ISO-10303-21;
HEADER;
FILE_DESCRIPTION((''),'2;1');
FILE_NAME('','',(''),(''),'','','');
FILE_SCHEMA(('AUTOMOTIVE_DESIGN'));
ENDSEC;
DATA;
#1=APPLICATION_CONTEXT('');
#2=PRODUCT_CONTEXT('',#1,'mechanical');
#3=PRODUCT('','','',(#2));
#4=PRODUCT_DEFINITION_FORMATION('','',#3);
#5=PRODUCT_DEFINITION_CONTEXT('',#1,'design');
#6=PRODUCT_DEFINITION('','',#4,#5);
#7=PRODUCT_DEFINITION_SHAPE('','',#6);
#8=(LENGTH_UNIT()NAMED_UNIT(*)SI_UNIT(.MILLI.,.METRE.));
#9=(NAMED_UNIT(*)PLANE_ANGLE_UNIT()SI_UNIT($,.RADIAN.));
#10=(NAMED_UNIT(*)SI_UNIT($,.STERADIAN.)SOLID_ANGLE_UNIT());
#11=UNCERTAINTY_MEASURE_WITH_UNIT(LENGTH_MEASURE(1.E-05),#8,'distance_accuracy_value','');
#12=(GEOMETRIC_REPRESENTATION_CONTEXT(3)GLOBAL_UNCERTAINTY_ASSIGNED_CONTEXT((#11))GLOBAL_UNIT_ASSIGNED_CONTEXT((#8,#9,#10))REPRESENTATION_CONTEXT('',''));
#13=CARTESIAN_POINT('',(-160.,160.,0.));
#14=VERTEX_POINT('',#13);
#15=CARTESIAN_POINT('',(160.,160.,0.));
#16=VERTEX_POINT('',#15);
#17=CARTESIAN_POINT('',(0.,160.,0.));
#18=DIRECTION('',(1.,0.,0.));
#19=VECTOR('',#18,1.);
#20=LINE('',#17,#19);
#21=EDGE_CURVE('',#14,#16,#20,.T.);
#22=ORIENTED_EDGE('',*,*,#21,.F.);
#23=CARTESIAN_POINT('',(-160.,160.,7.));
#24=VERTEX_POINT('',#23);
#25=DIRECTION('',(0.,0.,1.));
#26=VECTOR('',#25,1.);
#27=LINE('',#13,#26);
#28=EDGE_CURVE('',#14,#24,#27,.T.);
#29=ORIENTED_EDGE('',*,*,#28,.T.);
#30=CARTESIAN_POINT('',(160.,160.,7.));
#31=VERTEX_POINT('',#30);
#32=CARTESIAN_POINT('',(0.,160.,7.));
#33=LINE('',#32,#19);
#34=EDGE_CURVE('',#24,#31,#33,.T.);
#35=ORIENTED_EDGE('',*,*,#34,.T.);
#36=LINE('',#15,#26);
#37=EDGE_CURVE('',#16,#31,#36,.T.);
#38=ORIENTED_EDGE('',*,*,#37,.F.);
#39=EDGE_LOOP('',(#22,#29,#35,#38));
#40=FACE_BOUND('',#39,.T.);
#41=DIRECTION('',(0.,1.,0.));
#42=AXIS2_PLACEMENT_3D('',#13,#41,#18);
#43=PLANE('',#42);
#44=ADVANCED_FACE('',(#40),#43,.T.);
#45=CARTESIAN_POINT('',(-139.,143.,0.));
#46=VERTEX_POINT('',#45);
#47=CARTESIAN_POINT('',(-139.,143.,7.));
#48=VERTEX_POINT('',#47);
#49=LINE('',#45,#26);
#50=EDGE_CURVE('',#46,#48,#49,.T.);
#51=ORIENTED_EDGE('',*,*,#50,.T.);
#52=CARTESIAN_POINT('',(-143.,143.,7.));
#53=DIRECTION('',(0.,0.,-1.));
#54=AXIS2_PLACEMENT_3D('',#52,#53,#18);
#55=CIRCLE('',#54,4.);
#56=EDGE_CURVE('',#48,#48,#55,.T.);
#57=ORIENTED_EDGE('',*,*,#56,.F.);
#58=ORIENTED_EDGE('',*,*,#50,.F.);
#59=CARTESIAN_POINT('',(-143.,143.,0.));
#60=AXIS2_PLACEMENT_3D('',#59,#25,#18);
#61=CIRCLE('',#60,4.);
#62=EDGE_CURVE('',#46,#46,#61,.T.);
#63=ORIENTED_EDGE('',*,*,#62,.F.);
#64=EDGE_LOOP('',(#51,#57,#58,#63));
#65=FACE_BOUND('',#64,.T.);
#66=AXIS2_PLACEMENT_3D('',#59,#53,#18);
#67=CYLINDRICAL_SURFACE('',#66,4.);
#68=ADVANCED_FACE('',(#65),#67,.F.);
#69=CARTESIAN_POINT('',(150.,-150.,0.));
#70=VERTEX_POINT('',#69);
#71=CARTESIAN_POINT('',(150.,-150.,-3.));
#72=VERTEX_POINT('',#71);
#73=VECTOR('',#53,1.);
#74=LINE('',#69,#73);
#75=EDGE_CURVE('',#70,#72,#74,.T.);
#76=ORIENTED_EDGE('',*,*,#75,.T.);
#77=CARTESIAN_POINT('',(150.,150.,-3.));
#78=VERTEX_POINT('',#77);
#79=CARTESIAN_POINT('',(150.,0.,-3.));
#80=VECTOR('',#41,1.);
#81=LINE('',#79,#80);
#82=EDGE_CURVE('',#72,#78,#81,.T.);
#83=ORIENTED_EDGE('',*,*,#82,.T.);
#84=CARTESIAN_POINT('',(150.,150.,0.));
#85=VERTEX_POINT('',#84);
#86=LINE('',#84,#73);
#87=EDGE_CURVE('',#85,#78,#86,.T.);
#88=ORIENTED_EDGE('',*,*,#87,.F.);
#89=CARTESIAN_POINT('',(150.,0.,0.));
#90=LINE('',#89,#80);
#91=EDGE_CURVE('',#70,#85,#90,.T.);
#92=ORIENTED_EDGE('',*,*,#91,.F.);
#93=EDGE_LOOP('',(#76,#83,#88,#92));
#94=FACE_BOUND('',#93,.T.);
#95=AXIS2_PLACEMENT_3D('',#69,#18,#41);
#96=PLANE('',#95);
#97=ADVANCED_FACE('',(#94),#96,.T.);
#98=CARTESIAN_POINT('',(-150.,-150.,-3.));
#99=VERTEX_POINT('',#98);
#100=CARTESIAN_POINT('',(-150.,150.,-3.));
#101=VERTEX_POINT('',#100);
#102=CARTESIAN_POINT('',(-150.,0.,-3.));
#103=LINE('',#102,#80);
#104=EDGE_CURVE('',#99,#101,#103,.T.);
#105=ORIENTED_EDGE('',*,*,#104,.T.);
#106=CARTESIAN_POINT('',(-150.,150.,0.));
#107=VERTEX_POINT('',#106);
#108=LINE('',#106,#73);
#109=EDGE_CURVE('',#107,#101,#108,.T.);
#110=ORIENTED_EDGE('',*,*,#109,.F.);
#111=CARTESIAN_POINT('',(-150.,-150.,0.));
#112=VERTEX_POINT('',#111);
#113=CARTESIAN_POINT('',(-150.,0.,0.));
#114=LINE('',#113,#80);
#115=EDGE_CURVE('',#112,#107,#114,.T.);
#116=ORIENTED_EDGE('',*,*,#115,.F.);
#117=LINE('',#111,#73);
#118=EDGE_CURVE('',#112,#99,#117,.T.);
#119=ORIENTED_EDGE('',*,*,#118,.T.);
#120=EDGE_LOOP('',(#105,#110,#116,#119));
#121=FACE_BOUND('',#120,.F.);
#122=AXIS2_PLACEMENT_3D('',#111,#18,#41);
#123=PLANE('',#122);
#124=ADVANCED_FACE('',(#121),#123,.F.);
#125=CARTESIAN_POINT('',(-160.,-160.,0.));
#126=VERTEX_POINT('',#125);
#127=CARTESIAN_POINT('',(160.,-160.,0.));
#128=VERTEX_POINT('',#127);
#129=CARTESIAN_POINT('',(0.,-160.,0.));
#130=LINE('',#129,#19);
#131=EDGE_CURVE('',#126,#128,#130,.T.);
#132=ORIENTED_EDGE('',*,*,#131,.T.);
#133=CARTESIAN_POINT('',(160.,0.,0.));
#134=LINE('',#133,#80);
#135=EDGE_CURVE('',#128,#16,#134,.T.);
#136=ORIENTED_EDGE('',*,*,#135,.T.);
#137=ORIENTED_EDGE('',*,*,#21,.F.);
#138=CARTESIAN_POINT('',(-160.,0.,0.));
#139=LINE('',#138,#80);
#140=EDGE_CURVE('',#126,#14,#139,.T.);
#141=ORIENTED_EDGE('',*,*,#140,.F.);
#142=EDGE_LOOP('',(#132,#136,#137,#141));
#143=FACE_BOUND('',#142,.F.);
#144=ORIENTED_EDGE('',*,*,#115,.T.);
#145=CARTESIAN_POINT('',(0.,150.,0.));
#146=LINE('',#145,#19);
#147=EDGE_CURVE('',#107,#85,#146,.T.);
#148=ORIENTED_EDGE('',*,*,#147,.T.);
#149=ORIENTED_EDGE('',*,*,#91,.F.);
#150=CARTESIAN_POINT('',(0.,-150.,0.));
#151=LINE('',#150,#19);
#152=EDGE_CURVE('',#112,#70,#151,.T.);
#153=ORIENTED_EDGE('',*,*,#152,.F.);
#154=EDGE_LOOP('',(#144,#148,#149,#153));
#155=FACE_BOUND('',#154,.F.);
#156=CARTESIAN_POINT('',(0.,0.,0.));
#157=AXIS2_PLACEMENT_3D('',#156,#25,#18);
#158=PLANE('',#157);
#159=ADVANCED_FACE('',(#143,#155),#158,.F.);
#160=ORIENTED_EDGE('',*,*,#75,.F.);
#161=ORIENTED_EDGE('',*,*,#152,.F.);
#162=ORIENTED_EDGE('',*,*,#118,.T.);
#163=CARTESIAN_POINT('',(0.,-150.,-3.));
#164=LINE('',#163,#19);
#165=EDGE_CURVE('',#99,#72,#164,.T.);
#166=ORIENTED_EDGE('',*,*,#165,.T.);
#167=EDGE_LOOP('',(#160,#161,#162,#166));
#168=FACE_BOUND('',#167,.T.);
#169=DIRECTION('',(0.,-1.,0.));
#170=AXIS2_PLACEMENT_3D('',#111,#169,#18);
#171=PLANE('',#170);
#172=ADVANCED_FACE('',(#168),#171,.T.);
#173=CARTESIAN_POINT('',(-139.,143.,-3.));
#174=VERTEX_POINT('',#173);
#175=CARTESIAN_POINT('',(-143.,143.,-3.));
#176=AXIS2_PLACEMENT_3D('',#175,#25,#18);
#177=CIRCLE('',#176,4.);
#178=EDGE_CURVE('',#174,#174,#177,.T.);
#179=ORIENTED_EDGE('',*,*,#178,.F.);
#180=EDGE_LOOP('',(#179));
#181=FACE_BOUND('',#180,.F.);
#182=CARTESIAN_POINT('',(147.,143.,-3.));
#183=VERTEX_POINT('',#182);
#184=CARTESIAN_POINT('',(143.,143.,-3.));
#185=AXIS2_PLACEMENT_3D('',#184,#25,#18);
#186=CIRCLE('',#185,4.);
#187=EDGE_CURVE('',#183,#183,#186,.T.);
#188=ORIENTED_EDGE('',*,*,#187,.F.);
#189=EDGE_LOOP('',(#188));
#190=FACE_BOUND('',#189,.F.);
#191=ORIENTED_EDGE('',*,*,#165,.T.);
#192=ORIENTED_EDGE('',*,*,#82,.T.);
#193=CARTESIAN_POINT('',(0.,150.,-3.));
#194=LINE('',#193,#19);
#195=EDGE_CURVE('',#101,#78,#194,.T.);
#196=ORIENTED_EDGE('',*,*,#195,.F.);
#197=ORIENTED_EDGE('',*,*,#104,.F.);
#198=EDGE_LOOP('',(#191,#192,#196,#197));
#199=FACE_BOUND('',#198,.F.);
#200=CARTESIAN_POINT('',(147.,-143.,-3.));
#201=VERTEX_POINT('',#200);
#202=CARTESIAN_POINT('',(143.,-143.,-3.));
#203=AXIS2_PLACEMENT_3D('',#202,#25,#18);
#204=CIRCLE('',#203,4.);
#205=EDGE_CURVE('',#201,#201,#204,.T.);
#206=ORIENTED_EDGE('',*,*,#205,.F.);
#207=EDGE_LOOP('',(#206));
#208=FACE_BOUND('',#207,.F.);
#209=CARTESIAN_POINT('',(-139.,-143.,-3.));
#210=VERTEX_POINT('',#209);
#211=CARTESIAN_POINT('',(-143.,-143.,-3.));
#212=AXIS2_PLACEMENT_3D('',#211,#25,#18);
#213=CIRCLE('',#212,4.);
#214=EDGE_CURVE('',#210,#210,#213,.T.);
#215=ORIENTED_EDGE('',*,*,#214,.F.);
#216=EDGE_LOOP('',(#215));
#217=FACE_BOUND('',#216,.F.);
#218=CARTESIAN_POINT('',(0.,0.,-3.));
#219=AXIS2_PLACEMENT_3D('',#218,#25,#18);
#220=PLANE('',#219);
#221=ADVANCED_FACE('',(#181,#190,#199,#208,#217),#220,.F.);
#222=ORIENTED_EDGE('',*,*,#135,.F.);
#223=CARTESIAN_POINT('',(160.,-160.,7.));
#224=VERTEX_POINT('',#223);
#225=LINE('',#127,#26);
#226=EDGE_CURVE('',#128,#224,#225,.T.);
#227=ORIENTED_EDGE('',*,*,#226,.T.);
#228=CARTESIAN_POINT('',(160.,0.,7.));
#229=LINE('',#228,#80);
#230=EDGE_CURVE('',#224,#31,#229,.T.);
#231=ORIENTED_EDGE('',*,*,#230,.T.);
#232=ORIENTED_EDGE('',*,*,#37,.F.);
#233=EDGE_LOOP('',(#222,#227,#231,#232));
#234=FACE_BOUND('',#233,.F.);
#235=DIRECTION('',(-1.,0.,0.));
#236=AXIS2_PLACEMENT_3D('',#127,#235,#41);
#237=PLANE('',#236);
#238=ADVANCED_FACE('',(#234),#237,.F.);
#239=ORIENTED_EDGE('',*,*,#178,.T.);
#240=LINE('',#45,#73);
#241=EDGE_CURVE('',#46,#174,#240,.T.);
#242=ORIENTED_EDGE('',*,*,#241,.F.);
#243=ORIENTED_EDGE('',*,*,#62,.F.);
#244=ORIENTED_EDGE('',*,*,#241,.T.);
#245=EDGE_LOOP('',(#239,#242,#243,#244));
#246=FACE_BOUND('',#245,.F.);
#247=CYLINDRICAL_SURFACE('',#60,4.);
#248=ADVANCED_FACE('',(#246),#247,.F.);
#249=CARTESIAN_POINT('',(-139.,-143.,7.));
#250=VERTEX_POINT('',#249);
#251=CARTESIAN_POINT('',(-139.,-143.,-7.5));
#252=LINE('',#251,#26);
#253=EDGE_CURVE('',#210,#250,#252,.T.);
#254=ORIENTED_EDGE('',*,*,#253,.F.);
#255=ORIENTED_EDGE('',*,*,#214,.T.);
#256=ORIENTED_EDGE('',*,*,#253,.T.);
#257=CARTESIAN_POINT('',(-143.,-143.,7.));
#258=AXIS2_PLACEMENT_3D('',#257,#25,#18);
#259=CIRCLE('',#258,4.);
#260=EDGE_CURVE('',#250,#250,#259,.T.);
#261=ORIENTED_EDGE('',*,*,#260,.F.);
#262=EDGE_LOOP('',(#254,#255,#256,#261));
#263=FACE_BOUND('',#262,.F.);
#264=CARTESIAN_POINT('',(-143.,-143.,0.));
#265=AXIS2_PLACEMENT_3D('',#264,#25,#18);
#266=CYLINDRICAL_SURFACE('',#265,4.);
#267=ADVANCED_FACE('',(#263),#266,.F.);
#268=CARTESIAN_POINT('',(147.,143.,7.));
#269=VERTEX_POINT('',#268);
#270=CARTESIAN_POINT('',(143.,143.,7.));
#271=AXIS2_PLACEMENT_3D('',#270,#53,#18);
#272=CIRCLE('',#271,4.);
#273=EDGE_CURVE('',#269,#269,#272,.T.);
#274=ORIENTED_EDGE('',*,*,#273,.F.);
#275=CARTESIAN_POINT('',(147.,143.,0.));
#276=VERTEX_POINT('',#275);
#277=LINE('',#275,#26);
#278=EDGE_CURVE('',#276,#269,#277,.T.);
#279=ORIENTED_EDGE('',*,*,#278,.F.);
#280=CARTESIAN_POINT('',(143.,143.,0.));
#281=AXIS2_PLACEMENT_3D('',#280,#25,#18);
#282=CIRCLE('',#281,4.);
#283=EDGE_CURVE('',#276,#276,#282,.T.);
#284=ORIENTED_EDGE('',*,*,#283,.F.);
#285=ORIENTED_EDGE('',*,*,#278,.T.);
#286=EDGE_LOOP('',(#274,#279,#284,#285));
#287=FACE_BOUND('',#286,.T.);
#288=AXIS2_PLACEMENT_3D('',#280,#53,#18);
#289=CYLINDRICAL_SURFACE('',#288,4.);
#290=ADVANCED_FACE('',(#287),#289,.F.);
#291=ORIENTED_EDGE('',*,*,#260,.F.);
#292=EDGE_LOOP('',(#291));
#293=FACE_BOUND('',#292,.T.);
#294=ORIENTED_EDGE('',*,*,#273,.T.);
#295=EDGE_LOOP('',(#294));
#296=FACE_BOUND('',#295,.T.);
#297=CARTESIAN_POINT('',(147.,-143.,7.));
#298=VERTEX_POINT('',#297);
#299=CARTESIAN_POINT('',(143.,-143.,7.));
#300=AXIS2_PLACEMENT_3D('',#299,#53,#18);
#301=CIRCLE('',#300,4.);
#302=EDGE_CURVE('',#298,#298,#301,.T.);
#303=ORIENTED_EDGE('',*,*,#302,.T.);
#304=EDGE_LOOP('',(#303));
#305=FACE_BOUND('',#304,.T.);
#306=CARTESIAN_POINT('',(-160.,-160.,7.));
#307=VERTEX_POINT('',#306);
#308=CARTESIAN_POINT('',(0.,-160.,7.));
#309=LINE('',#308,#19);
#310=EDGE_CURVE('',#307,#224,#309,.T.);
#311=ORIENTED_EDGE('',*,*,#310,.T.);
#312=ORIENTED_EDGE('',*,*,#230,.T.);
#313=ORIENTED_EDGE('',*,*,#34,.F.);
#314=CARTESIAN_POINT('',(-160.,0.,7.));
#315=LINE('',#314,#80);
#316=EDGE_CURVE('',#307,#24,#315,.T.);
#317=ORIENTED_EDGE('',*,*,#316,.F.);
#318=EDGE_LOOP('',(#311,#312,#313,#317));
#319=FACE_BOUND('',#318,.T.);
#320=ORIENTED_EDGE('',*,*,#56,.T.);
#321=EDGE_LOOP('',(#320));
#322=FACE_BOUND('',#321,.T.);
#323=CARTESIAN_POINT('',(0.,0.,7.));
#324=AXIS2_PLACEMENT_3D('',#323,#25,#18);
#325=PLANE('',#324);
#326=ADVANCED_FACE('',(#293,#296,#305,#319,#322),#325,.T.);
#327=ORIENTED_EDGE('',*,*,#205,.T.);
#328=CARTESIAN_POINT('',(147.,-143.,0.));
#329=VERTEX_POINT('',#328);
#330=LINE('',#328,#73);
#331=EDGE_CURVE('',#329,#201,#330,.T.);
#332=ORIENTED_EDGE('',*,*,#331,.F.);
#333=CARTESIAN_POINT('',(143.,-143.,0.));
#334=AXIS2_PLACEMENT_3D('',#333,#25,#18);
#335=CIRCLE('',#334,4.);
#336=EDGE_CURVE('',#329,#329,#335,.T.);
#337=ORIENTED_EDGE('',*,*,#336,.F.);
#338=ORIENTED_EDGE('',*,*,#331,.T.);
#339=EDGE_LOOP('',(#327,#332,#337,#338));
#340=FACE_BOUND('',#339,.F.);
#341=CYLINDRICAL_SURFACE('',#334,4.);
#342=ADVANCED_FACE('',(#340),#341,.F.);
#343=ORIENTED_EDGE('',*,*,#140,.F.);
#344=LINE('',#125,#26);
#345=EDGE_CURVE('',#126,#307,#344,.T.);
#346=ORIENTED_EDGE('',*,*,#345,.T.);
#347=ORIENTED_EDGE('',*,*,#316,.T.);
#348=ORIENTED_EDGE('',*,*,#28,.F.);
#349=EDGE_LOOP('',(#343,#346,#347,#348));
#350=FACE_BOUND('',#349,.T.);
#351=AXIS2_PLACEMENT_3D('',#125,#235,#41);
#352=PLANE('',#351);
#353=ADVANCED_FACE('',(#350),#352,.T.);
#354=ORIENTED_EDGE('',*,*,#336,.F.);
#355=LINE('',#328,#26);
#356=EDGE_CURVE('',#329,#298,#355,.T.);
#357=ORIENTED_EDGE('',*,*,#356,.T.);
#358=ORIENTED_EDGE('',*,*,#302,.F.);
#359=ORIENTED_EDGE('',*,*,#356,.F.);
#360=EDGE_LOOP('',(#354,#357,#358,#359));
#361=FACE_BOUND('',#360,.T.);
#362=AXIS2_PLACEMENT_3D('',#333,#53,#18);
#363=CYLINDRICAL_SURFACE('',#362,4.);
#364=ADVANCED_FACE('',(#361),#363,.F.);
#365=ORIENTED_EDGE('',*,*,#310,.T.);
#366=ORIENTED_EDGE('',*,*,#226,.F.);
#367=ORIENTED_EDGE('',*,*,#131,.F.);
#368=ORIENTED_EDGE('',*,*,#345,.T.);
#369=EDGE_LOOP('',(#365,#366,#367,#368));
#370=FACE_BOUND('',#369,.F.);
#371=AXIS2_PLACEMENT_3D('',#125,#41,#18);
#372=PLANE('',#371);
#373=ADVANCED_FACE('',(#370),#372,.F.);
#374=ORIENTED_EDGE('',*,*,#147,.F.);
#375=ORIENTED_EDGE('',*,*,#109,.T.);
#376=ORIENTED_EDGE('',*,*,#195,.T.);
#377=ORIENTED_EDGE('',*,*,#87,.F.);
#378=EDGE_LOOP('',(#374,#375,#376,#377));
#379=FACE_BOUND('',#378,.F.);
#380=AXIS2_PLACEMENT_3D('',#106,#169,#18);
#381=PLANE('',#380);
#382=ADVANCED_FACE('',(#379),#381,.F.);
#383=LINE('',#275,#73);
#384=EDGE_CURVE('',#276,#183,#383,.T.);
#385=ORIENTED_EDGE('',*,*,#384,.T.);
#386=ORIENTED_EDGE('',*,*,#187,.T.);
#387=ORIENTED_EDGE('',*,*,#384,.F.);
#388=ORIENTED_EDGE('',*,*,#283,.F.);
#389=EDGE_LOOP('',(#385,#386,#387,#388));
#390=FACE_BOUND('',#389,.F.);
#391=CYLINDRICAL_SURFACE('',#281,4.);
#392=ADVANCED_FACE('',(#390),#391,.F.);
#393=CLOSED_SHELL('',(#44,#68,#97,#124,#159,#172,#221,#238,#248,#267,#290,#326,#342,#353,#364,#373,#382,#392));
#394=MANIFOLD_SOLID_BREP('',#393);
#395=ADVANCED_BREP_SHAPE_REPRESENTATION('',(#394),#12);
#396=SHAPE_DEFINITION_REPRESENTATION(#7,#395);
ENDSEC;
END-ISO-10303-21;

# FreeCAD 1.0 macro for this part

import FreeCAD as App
import Part
import Sketcher
Q = App.Units.Quantity

doc = App.newDocument("Part")
body = doc.addObject("PartDesign::Body", "Body")

# Sketch on XY plane
sketch1 = body.newObject("Sketcher::SketchObject", "Sketch")
sketch1.AttachmentSupport = (doc.getObject("XY_Plane"), [""])
sketch1.MapMode = "FlatFace"
sketch1.addGeometry([
    Part.LineSegment(App.Vector(-160, 160, 0), App.Vector(-160, -160, 0)),
    Part.LineSegment(App.Vector(-160, -160, 0), App.Vector(160, -160, 0)),
    Part.LineSegment(App.Vector(160, -160, 0), App.Vector(160, 160, 0)),
    Part.LineSegment(App.Vector(160, 160, 0), App.Vector(-160, 160, 0)),
], False)
sketch1.addConstraint([
    Sketcher.Constraint("Coincident", 0, 2, 1, 1),
    Sketcher.Constraint("Coincident", 1, 2, 2, 1),
    Sketcher.Constraint("Coincident", 2, 2, 3, 1),
    Sketcher.Constraint("Coincident", 3, 2, 0, 1),
    Sketcher.Constraint("Vertical", 0),
    Sketcher.Constraint("Horizontal", 1),
    Sketcher.Constraint("Vertical", 2),
    Sketcher.Constraint("Horizontal", 3),
    Sketcher.Constraint("Symmetric", 0, 2, 2, 2, -1, 1),
    Sketcher.Constraint("Equal", 3, 0),
    Sketcher.Constraint("DistanceX", 1, 1, 1, 2, Q("320 mm")),
])
pad1 = body.newObject("PartDesign::Pad", "Pad")
pad1.Profile = sketch1
pad1.Length = 7

# Sketch on XY plane
sketch2 = body.newObject("Sketcher::SketchObject", "Sketch001")
sketch2.AttachmentSupport = (doc.getObject("XY_Plane"), [""])
sketch2.MapMode = "FlatFace"
sketch2.addGeometry([
    Part.LineSegment(App.Vector(-150, 150, 0), App.Vector(-150, -150, 0)),
    Part.LineSegment(App.Vector(-150, -150, 0), App.Vector(150, -150, 0)),
    Part.LineSegment(App.Vector(150, -150, 0), App.Vector(150, 150, 0)),
    Part.LineSegment(App.Vector(150, 150, 0), App.Vector(-150, 150, 0)),
], False)
sketch2.addConstraint([
    Sketcher.Constraint("Coincident", 0, 2, 1, 1),
    Sketcher.Constraint("Coincident", 1, 2, 2, 1),
    Sketcher.Constraint("Coincident", 2, 2, 3, 1),
    Sketcher.Constraint("Coincident", 3, 2, 0, 1),
    Sketcher.Constraint("Vertical", 0),
    Sketcher.Constraint("Horizontal", 1),
    Sketcher.Constraint("Vertical", 2),
    Sketcher.Constraint("Horizontal", 3),
    Sketcher.Constraint("Symmetric", 0, 2, 2, 2, -1, 1),
    Sketcher.Constraint("Equal", 3, 0),
    Sketcher.Constraint("DistanceX", 1, 1, 1, 2, Q("300 mm")),
])
pad2 = body.newObject("PartDesign::Pad", "Pad001")
pad2.Profile = sketch2
pad2.Length = 3
pad2.Reversed = True

# Sketch on XY plane
sketch3 = body.newObject("Sketcher::SketchObject", "Sketch002")
sketch3.AttachmentSupport = (doc.getObject("XY_Plane"), [""])
sketch3.MapMode = "FlatFace"
sketch3.addGeometry([
    Part.Circle(App.Vector(-143, 143, 0), App.Vector(0, 0, 1), 4),
    Part.Circle(App.Vector(143, 143, 0), App.Vector(0, 0, 1), 4),
    Part.Circle(App.Vector(143, -143, 0), App.Vector(0, 0, 1), 4),
    Part.Circle(App.Vector(-143, -143, 0), App.Vector(0, 0, 1), 4),
], False)
sketch3.addConstraint([
    Sketcher.Constraint("Equal", 0, 1),
    Sketcher.Constraint("Equal", 1, 2),
    Sketcher.Constraint("Equal", 2, 3),
    Sketcher.Constraint("Symmetric", 0, 3, 2, 3, -1, 1),
    Sketcher.Constraint("Symmetric", 1, 3, 3, 3, -1, 1),
    Sketcher.Constraint("Symmetric", 0, 3, 1, 3, -2),
    Sketcher.Constraint("Diameter", 0, Q("8 mm")),
    Sketcher.Constraint("DistanceX", 0, 3, -1, 1, Q("143 mm")),
    Sketcher.Constraint("DistanceY", -1, 1, 0, 3, Q("143 mm")),
])
pocket1 = body.newObject("PartDesign::Pocket", "Pocket")
pocket1.Profile = sketch3
pocket1.Length = 15
pocket1.Midplane = True

doc.recompute()
